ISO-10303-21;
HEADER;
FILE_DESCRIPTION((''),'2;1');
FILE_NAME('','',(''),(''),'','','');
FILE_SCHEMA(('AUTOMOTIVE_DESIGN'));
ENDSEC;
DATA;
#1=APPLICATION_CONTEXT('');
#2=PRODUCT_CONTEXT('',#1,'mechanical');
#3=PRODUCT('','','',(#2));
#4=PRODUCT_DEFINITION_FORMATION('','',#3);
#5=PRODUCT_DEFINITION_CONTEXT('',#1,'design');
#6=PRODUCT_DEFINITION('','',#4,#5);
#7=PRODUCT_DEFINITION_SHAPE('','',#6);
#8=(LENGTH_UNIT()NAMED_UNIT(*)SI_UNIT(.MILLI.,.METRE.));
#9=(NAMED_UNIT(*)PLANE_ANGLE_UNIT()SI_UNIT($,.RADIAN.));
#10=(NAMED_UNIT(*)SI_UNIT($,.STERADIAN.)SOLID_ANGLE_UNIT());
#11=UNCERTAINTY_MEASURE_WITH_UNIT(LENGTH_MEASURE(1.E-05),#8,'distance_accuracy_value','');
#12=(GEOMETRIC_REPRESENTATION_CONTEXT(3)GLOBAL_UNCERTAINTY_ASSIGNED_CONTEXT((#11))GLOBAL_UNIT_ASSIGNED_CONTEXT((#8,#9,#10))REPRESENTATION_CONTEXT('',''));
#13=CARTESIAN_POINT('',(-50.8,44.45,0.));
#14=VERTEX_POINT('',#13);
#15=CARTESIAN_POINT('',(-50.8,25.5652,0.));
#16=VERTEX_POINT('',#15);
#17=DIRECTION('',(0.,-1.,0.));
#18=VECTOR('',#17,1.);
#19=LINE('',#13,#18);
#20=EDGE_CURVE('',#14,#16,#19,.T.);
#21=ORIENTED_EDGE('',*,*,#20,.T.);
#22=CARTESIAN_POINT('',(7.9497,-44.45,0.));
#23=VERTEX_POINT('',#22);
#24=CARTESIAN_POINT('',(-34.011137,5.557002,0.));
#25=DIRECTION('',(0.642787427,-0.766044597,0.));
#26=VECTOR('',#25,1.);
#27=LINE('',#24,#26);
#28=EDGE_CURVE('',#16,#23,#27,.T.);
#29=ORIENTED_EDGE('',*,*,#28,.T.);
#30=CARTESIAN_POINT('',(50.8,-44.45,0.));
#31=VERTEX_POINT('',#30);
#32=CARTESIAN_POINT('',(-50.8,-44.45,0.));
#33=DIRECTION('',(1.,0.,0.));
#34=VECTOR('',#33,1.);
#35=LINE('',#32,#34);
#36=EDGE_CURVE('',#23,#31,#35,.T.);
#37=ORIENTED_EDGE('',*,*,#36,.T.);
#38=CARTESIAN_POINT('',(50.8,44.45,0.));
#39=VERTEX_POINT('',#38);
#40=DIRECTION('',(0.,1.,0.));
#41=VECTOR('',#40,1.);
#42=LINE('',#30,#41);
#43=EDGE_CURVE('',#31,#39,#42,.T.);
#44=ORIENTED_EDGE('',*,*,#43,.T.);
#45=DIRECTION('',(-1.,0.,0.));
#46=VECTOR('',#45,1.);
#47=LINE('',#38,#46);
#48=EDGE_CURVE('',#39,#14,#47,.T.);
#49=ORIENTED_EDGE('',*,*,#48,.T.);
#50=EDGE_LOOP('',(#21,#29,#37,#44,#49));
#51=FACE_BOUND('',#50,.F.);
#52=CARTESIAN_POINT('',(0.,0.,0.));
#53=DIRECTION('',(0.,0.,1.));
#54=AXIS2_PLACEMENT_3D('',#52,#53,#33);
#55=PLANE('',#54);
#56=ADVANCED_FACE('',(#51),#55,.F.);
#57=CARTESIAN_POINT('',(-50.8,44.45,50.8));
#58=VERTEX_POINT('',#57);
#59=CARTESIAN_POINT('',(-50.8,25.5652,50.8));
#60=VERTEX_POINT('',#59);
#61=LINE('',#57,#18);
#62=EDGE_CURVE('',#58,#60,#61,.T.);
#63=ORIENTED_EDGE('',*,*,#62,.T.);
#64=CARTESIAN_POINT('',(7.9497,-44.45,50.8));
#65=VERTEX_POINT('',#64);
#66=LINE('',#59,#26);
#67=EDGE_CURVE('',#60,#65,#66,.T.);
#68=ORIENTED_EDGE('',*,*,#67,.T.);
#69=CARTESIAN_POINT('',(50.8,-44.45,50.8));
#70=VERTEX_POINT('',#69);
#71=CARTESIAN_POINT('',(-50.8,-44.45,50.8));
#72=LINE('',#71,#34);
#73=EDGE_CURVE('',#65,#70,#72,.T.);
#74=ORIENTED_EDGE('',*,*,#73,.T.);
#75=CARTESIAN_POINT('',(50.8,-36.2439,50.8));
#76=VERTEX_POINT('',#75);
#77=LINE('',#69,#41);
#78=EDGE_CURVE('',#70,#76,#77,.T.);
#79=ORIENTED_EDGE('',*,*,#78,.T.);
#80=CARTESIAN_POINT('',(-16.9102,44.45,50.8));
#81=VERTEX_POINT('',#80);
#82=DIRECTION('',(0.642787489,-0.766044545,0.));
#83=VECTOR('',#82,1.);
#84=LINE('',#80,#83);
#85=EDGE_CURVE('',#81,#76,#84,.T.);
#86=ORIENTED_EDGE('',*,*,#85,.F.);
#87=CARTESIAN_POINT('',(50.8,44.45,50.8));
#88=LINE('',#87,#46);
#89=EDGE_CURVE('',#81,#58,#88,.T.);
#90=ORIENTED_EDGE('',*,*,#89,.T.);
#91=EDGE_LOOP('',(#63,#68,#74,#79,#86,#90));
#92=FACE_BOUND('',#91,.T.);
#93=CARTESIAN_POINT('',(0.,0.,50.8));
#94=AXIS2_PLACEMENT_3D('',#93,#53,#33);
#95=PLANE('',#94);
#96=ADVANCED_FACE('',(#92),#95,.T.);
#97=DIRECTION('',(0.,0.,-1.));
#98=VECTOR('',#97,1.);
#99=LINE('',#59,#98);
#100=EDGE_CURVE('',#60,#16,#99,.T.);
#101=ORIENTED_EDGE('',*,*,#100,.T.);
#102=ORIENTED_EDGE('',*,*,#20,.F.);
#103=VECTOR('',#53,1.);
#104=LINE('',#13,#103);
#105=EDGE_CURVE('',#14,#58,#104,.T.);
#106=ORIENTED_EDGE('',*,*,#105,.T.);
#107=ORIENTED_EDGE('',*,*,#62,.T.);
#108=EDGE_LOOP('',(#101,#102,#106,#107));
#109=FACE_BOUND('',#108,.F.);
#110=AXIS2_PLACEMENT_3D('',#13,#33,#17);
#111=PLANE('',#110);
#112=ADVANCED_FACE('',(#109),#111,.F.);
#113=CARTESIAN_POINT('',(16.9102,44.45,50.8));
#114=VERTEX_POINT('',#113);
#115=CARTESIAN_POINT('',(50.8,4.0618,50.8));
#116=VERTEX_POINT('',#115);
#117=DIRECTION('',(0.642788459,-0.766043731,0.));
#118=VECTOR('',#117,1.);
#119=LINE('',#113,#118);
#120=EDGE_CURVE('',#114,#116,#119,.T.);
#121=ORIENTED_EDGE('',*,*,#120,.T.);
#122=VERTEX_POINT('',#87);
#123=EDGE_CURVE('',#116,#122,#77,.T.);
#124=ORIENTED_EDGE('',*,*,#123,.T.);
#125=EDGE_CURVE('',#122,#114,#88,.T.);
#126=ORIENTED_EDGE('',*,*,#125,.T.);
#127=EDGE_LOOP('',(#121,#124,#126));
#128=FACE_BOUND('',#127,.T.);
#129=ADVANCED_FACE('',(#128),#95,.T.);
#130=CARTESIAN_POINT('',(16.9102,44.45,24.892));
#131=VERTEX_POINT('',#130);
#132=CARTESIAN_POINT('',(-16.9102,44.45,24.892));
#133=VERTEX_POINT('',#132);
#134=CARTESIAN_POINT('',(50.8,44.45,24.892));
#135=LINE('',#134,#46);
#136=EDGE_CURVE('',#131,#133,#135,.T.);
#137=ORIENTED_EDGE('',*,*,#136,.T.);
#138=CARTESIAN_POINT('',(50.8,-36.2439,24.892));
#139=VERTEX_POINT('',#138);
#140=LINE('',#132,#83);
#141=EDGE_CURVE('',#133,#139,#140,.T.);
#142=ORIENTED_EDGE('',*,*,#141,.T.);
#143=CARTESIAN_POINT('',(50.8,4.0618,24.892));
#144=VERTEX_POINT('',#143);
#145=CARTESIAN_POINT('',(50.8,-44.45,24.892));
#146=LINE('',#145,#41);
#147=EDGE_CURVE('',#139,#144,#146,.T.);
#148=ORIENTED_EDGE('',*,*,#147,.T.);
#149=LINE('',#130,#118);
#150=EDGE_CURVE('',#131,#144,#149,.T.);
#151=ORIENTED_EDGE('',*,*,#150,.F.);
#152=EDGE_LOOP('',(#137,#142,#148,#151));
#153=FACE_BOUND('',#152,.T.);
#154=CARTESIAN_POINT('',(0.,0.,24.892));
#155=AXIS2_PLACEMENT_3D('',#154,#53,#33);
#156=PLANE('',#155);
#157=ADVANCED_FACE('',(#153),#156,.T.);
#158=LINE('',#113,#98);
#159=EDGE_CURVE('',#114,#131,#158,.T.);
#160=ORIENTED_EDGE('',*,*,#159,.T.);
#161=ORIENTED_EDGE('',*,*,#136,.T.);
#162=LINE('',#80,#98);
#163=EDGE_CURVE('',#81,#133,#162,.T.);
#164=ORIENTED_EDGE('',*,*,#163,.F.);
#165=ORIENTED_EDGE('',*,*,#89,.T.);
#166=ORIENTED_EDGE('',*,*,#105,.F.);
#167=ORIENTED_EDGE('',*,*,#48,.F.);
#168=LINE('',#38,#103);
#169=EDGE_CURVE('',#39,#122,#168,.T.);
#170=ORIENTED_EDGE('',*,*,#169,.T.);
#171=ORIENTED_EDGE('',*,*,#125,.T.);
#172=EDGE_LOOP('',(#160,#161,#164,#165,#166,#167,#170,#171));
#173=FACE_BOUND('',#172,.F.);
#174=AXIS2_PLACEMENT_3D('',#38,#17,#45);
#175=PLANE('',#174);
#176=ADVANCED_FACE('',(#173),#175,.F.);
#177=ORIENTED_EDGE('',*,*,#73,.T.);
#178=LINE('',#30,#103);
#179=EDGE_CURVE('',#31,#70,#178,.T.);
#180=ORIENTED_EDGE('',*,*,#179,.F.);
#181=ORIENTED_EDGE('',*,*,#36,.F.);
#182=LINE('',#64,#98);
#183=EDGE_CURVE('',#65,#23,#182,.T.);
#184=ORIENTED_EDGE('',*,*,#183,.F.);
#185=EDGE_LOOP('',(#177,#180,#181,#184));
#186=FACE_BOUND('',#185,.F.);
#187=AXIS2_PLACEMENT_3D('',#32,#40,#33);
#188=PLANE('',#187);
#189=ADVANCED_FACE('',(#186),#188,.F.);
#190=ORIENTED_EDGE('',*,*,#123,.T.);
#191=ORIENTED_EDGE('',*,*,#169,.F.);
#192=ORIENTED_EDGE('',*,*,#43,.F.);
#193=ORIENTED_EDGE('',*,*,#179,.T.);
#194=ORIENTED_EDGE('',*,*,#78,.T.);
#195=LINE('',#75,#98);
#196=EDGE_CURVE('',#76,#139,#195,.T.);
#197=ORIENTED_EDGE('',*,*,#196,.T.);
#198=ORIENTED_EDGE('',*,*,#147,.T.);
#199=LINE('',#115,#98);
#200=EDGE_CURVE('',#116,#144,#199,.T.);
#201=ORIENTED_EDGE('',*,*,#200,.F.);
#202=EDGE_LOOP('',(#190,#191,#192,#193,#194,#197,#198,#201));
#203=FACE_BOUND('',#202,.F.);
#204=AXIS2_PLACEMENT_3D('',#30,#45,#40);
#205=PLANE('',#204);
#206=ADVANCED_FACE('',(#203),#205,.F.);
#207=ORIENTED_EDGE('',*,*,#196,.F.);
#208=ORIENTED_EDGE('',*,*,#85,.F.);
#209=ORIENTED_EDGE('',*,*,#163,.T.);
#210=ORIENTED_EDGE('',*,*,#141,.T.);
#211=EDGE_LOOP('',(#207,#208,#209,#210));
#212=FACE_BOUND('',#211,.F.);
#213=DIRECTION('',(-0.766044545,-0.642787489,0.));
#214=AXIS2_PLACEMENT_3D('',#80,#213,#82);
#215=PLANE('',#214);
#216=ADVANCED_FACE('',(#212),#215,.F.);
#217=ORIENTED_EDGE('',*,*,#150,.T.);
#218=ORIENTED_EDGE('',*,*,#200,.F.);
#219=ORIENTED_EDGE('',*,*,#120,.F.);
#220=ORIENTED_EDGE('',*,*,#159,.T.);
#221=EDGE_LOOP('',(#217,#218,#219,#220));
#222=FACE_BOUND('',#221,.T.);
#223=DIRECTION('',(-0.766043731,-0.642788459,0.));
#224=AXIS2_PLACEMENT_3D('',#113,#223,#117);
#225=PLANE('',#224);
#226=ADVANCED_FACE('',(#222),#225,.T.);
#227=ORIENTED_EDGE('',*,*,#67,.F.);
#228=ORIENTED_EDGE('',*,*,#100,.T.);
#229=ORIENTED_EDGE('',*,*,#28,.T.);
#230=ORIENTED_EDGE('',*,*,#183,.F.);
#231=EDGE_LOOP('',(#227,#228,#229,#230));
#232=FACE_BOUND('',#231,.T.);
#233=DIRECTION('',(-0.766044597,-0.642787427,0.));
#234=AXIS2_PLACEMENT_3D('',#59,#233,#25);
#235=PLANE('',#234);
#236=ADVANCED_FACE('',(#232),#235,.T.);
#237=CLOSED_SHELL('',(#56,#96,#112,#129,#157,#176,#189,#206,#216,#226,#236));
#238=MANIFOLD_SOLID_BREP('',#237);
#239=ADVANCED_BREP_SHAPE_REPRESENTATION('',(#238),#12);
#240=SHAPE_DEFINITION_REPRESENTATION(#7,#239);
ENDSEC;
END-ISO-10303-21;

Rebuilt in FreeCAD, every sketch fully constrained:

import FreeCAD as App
import Part
import Sketcher
from FreeCAD import Vector
Q = App.Units.Quantity


def add_polygon(sketch, points):
    """Adds a closed chain of lines whose ends are joined by coincident constraints."""
    first, n = sketch.GeometryCount, len(points)
    for a, b in zip(points, points[1:] + points[:1]):
        sketch.addGeometry(Part.LineSegment(App.Vector(*a, 0), App.Vector(*b, 0)), False)
    for i in range(n):
        sketch.addConstraint(Sketcher.Constraint("Coincident", first + i, 2, first + (i + 1) % n, 1))

doc = App.newDocument("Part")
body = doc.addObject("PartDesign::Body", "Body")

# Sketch on XY plane
sketch1 = body.newObject("Sketcher::SketchObject", "Sketch")
sketch1.AttachmentSupport = (doc.getObject("XY_Plane"), [""])
sketch1.MapMode = "FlatFace"
add_polygon(sketch1, [(-51, 44), (-51, -44), (51, -44), (51, 44)])  # lines 0-3
sketch1.addConstraint([
    Sketcher.Constraint("Vertical", 0),
    Sketcher.Constraint("Horizontal", 1),
    Sketcher.Constraint("Vertical", 2),
    Sketcher.Constraint("Horizontal", 3),
    Sketcher.Constraint("Symmetric", 0, 2, 2, 2, -1, 1),
    Sketcher.Constraint("DistanceX", 1, 1, 1, 2, Q("4 in")),
    Sketcher.Constraint("DistanceY", 0, 2, 0, 1, Q("3.5 in")),
])
pad1 = body.newObject("PartDesign::Pad", "Pad")
pad1.Profile = sketch1
pad1.Length = Q("2 in")

# Sketch on XY plane
sketch2 = body.newObject("Sketcher::SketchObject", "Sketch001")
sketch2.AttachmentSupport = (doc.getObject("XY_Plane"), [""])
sketch2.MapMode = "FlatFace"
sketch2.AttachmentOffset = App.Placement(Vector(0, 0, 2 * 25.4), App.Rotation())
add_polygon(sketch2, [(51, 4), (17, 44), (-17, 44), (51, -36)])  # lines 0-3
sketch2.addConstraint([
    Sketcher.Constraint("Horizontal", 1),
    Sketcher.Constraint("Vertical", 3),
    Sketcher.Constraint("Parallel", 0, 2),
    Sketcher.Constraint("Angle", 2, Q("-50 deg")),
    Sketcher.Constraint("DistanceX", -1, 1, 2, 2, Q("2 in")),
    Sketcher.Constraint("DistanceY", -1, 1, 0, 2, Q("1.75 in")),
    Sketcher.Constraint("DistanceX", 1, 2, 1, 1, Q("1.3315 in")),
    Sketcher.Constraint("Distance", 0, Q("2.0757087 in")),
])
pocket1 = body.newObject("PartDesign::Pocket", "Pocket")
pocket1.Profile = sketch2
pocket1.Length = Q("1.02 in")

# Sketch on XY plane
sketch3 = body.newObject("Sketcher::SketchObject", "Sketch002")
sketch3.AttachmentSupport = (doc.getObject("XY_Plane"), [""])
sketch3.MapMode = "FlatFace"
sketch3.AttachmentOffset = App.Placement(Vector(0, 0, 2 * 25.4), App.Rotation())
add_polygon(sketch3, [(8, -44), (-51, 26), (-51, -44)])  # lines 0-2
sketch3.addConstraint([
    Sketcher.Constraint("Vertical", 1),
    Sketcher.Constraint("Horizontal", 2),
    Sketcher.Constraint("DistanceX", 0, 2, -1, 1, Q("2 in")),
    Sketcher.Constraint("Angle", 0, Q("130 deg")),
    Sketcher.Constraint("DistanceY", 1, 2, -1, 1, Q("1.75 in")),
    Sketcher.Constraint("DistanceY", 1, 2, 1, 1, Q("2.7565 in")),
])
pocket2 = body.newObject("PartDesign::Pocket", "Pocket001")
pocket2.Profile = sketch3
pocket2.Type = "ThroughAll"

doc.recompute()
